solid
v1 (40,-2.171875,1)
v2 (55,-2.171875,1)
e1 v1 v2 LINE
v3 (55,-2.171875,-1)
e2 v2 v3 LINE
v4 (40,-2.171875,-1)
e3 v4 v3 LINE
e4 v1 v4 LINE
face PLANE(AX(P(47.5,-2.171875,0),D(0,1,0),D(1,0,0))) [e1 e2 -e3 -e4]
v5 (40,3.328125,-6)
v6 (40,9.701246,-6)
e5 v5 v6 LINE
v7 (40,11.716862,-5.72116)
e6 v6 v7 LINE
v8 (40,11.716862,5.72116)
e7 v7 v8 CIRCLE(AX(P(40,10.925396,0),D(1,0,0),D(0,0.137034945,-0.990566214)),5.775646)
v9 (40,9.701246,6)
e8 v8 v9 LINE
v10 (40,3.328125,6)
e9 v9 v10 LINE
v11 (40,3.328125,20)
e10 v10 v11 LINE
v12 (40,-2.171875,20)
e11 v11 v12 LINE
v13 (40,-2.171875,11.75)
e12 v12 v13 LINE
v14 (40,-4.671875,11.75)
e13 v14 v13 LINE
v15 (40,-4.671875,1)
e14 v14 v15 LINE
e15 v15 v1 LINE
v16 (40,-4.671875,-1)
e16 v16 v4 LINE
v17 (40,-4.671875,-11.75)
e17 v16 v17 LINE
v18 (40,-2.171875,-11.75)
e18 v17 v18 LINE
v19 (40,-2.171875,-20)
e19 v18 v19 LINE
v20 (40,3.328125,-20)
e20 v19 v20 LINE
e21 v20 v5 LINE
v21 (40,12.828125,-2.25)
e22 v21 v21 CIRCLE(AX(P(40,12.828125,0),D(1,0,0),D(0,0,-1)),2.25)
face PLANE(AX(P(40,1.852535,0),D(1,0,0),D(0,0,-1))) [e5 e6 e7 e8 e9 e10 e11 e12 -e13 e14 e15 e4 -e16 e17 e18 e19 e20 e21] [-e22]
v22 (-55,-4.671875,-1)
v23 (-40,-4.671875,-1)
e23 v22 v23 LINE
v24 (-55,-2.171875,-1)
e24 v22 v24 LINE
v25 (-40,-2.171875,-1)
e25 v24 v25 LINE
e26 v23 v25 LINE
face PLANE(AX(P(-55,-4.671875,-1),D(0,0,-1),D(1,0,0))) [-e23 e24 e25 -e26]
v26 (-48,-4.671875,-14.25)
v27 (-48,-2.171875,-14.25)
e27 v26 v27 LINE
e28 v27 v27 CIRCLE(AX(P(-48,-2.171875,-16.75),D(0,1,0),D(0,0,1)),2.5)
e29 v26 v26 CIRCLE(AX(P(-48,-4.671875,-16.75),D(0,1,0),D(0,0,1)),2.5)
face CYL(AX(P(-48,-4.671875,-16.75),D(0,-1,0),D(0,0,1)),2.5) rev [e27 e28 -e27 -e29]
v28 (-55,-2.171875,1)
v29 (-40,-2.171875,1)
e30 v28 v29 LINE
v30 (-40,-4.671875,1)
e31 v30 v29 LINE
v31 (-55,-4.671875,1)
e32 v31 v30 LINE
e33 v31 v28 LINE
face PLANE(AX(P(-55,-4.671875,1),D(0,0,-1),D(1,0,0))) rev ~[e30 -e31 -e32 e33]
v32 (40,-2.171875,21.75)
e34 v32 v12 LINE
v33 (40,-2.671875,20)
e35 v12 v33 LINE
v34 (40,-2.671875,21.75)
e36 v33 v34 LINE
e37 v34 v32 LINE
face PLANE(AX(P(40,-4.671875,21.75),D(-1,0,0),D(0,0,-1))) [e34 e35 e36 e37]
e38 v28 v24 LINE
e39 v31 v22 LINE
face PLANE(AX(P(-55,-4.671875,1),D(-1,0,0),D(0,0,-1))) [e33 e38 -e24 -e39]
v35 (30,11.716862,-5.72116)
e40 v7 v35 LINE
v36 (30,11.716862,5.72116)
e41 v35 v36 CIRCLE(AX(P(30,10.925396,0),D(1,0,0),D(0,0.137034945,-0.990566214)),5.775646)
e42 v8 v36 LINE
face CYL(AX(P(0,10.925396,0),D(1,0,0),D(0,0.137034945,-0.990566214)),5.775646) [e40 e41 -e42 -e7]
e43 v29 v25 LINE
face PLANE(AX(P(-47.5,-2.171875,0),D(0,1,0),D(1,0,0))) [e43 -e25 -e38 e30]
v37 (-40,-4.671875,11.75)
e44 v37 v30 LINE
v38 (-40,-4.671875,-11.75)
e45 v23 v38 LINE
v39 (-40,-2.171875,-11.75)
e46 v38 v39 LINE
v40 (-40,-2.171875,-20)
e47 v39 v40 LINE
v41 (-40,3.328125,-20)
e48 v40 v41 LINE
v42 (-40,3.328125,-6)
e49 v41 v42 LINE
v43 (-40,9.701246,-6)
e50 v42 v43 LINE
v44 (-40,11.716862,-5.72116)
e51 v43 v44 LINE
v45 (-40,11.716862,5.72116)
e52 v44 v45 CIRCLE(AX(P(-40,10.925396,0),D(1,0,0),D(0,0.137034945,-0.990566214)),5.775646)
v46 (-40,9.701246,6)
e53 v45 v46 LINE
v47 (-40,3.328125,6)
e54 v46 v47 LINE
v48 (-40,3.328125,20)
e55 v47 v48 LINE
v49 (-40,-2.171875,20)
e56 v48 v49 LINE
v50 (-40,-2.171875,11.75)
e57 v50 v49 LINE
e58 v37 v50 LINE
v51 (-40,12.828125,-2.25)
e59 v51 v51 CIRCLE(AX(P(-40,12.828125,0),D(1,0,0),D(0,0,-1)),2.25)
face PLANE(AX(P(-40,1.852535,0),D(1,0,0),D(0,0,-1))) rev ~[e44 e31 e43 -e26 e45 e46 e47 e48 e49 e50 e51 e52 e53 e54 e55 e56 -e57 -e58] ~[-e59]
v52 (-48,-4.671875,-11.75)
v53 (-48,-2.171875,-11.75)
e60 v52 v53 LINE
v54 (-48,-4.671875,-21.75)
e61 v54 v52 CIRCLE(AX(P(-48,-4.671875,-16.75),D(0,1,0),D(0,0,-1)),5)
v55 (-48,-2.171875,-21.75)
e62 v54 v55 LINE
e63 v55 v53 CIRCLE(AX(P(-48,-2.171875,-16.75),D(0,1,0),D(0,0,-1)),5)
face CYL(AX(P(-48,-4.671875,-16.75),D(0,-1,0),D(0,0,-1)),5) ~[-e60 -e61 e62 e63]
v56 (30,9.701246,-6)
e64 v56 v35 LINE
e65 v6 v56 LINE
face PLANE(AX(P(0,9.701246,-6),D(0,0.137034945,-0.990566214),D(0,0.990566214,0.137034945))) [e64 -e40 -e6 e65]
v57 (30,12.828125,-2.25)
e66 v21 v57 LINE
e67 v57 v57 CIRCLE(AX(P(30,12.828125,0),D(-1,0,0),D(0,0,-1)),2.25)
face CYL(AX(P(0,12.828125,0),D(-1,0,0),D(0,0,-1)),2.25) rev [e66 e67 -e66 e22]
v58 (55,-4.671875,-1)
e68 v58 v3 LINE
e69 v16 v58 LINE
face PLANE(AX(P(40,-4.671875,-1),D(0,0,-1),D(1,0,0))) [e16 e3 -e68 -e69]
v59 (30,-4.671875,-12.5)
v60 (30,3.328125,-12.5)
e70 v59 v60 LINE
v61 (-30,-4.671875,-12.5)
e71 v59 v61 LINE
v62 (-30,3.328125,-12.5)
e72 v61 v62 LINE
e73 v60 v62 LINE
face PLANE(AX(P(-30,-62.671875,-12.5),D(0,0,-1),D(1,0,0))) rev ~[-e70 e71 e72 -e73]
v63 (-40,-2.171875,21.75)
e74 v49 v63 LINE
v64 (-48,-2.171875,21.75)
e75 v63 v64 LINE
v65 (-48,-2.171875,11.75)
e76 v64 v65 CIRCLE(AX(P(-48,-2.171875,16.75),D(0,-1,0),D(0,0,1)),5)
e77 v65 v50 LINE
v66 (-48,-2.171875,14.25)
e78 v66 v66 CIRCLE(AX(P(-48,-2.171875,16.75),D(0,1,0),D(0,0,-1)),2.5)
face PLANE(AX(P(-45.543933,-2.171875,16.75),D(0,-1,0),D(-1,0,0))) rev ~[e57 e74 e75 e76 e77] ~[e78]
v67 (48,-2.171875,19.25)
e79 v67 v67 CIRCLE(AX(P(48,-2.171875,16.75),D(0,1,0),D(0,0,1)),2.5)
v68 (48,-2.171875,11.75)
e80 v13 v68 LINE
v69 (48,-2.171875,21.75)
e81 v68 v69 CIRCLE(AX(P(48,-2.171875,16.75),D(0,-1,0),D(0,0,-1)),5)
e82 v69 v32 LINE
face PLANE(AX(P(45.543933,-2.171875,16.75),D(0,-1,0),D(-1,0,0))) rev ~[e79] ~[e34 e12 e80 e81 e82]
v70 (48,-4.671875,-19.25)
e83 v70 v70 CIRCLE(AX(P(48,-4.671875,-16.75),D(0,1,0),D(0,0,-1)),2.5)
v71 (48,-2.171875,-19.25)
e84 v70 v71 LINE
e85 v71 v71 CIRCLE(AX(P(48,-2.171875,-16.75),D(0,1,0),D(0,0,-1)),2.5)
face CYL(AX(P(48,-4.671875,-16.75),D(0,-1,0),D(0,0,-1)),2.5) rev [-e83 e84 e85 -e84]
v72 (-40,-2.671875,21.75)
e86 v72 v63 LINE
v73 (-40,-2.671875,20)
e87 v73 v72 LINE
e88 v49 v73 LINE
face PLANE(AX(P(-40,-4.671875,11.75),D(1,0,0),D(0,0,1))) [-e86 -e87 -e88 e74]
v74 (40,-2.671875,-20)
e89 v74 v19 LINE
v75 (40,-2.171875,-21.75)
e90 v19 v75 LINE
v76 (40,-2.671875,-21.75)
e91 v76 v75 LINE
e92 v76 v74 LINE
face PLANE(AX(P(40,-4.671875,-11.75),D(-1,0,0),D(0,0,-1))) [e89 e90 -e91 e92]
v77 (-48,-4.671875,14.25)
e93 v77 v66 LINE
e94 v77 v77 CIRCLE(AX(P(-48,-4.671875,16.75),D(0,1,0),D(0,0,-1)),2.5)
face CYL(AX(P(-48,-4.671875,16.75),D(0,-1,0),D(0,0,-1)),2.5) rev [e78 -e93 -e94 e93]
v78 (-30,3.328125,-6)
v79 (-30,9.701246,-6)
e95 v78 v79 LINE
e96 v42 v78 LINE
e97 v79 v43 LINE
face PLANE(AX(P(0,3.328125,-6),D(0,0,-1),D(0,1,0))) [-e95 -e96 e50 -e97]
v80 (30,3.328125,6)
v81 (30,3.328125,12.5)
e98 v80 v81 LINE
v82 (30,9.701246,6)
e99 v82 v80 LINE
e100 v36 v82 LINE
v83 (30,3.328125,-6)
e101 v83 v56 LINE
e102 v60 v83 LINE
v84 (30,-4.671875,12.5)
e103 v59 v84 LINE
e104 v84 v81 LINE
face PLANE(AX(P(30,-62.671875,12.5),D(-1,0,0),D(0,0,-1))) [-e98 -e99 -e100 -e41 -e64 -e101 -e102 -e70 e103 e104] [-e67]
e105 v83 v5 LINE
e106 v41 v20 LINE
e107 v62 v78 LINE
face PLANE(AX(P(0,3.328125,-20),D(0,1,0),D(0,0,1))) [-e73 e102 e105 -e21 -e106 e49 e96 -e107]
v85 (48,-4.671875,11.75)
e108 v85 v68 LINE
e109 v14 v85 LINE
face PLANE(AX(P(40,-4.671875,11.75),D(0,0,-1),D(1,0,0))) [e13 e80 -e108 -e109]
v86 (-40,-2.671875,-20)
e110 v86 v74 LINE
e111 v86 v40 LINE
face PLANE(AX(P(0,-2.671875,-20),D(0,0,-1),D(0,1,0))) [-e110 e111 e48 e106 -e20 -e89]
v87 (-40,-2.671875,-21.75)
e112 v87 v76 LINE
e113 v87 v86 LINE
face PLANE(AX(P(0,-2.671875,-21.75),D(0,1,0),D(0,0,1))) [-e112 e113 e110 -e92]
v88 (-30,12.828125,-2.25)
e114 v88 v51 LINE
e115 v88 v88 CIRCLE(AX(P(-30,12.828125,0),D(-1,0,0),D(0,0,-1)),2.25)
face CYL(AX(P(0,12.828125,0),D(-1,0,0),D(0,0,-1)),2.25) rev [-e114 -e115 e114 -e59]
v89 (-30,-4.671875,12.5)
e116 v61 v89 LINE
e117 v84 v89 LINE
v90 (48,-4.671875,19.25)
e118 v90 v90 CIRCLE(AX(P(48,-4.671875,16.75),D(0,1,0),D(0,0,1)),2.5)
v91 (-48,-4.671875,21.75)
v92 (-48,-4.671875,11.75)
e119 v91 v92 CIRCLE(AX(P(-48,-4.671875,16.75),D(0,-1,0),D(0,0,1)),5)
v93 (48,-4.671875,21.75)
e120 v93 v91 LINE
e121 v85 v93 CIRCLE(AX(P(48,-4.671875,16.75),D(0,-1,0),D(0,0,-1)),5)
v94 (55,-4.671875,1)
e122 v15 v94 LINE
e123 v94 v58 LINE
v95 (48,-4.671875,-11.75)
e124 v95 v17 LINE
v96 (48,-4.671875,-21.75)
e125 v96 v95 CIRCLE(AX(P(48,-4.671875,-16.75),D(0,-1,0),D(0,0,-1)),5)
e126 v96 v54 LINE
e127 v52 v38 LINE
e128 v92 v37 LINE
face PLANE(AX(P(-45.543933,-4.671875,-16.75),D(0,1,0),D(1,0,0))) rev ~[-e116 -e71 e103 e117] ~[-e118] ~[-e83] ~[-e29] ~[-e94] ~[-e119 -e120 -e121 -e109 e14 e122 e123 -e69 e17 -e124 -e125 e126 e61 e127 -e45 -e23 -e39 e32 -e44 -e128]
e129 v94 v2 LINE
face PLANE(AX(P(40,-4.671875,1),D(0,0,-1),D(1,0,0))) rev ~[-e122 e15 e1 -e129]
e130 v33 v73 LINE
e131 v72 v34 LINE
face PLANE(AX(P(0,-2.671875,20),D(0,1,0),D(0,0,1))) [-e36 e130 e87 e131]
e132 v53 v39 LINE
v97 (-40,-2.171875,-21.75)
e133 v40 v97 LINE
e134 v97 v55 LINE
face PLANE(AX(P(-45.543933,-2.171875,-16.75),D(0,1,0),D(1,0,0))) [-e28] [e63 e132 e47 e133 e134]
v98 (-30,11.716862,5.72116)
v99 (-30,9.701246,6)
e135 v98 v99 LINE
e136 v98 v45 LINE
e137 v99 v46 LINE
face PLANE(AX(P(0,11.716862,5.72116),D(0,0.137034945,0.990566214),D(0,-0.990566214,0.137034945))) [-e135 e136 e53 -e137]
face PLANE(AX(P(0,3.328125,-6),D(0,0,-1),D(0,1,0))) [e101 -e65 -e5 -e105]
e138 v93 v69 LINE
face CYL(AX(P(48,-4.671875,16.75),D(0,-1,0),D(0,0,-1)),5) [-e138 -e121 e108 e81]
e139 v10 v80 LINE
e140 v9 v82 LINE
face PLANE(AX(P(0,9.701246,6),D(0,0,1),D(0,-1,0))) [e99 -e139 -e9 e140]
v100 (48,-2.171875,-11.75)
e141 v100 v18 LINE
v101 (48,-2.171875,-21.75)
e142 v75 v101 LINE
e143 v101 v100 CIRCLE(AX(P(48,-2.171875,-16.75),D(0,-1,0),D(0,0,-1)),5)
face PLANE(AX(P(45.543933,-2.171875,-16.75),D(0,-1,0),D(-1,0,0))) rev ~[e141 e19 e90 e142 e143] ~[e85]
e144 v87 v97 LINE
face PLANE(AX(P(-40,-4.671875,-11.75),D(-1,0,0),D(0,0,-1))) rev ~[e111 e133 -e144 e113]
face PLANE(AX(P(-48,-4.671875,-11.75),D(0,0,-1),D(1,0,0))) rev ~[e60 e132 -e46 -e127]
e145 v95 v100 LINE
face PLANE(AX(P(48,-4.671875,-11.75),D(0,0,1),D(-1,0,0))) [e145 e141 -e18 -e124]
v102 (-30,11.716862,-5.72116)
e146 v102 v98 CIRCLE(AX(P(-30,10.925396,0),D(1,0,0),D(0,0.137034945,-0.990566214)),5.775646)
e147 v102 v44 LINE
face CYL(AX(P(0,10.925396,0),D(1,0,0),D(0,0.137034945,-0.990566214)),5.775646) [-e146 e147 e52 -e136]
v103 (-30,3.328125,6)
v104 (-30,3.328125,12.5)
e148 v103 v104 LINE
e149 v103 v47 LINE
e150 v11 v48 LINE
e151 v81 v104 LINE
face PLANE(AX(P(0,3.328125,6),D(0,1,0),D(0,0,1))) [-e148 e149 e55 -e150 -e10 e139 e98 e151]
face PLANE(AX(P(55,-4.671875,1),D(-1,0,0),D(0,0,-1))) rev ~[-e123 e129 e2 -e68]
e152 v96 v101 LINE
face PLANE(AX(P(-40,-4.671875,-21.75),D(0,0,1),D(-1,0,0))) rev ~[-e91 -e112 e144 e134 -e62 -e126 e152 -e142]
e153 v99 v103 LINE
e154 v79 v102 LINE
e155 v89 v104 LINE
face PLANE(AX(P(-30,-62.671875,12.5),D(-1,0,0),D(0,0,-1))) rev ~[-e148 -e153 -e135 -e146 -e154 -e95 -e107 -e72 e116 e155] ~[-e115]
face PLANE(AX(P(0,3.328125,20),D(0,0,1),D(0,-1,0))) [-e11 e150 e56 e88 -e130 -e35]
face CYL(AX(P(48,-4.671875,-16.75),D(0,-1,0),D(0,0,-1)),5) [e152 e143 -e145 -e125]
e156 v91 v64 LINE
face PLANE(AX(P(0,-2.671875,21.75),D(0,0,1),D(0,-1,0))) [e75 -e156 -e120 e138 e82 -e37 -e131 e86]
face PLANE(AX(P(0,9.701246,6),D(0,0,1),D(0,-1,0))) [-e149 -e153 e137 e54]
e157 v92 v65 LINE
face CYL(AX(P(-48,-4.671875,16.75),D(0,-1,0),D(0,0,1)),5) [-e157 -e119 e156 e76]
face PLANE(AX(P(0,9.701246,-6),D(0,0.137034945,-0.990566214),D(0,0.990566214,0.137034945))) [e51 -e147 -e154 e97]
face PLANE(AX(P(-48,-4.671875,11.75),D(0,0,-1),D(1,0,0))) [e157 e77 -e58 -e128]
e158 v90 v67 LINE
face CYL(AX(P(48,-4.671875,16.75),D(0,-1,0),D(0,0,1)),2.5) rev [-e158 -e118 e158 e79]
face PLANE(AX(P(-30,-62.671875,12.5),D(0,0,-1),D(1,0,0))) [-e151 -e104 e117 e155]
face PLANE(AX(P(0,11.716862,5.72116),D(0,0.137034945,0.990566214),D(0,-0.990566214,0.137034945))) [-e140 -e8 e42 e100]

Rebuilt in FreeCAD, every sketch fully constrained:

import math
import FreeCAD as App
import Part
import Sketcher
Q = App.Units.Quantity


def add_polygon(sketch, points):
    """Adds a closed chain of lines whose ends are joined by coincident constraints."""
    first, n = sketch.GeometryCount, len(points)
    for a, b in zip(points, points[1:] + points[:1]):
        sketch.addGeometry(Part.LineSegment(App.Vector(*a, 0), App.Vector(*b, 0)), False)
    for i in range(n):
        sketch.addConstraint(Sketcher.Constraint("Coincident", first + i, 2, first + (i + 1) % n, 1))

doc = App.newDocument("Part")
body = doc.addObject("PartDesign::Body", "Body")

# Sketch on YZ plane
sketch1 = body.newObject("Sketcher::SketchObject", "Sketch")
sketch1.AttachmentSupport = (doc.getObject("YZ_Plane"), [""])
sketch1.MapMode = "FlatFace"
sketch1.addGeometry([
    Part.LineSegment(App.Vector(-2.671875, 20, 0), App.Vector(-2.671875, 21.75, 0)),  # 0
    Part.LineSegment(App.Vector(-2.671875, 21.75, 0), App.Vector(-4.671875, 21.75, 0)),  # 1
    Part.LineSegment(App.Vector(-4.671875, 21.75, 0), App.Vector(-4.671875, -21.75, 0)),  # 2
    Part.LineSegment(App.Vector(-4.671875, -21.75, 0), App.Vector(-2.671875, -21.75, 0)),  # 3
    Part.LineSegment(App.Vector(-2.671875, -21.75, 0), App.Vector(-2.671875, -20, 0)),  # 4
    Part.LineSegment(App.Vector(-2.671875, -20, 0), App.Vector(3.328125, -20, 0)),  # 5
    Part.LineSegment(App.Vector(3.328125, -20, 0), App.Vector(3.328125, -6, 0)),  # 6
    Part.LineSegment(App.Vector(3.328125, -6, 0), App.Vector(9.701246, -6, 0)),  # 7
    Part.LineSegment(App.Vector(9.701246, -6, 0), App.Vector(11.716862, -5.72116, 0)),  # 8
    Part.ArcOfCircle(Part.Circle(App.Vector(10.925396, 0, 0), App.Vector(0, 0, 1), 5.775646), math.radians(-82.123693), math.radians(82.123693)),  # 9
    Part.LineSegment(App.Vector(11.716862, 5.72116, 0), App.Vector(9.701246, 6, 0)),  # 10
    Part.LineSegment(App.Vector(9.701246, 6, 0), App.Vector(3.328125, 6, 0)),  # 11
    Part.LineSegment(App.Vector(3.328125, 6, 0), App.Vector(3.328125, 20, 0)),  # 12
    Part.LineSegment(App.Vector(3.328125, 20, 0), App.Vector(-2.671875, 20, 0)),  # 13
    Part.Circle(App.Vector(12.828125, 0, 0), App.Vector(0, 0, 1), 2.25),  # 14
], False)
sketch1.addConstraint([
    Sketcher.Constraint("Coincident", 0, 2, 1, 1),
    Sketcher.Constraint("Coincident", 1, 2, 2, 1),
    Sketcher.Constraint("Coincident", 2, 2, 3, 1),
    Sketcher.Constraint("Coincident", 3, 2, 4, 1),
    Sketcher.Constraint("Coincident", 4, 2, 5, 1),
    Sketcher.Constraint("Coincident", 5, 2, 6, 1),
    Sketcher.Constraint("Coincident", 6, 2, 7, 1),
    Sketcher.Constraint("Coincident", 7, 2, 8, 1),
    Sketcher.Constraint("Tangent", 8, 2, 9, 1),
    Sketcher.Constraint("Tangent", 9, 2, 10, 1),
    Sketcher.Constraint("Coincident", 10, 2, 11, 1),
    Sketcher.Constraint("Coincident", 11, 2, 12, 1),
    Sketcher.Constraint("Coincident", 12, 2, 13, 1),
    Sketcher.Constraint("Coincident", 13, 2, 0, 1),
    Sketcher.Constraint("Vertical", 0),
    Sketcher.Constraint("Horizontal", 1),
    Sketcher.Constraint("Vertical", 2),
    Sketcher.Constraint("Horizontal", 3),
    Sketcher.Constraint("Vertical", 4),
    Sketcher.Constraint("Horizontal", 5),
    Sketcher.Constraint("Vertical", 6),
    Sketcher.Constraint("Horizontal", 7),
    Sketcher.Constraint("Horizontal", 11),
    Sketcher.Constraint("Vertical", 12),
    Sketcher.Constraint("Horizontal", 13),
    Sketcher.Constraint("Symmetric", 0, 2, 3, 2, -1),
    Sketcher.Constraint("Symmetric", 8, 2, 9, 2, -1),
    Sketcher.Constraint("Symmetric", 6, 2, 11, 2, -1),
    Sketcher.Constraint("PointOnObject", 14, 3, -1),
    Sketcher.Constraint("Equal", 0, 4),
    Sketcher.Constraint("Diameter", 14, Q("4.5 mm")),
    Sketcher.Constraint("DistanceX", 1, 2, 1, 1, Q("2 mm")),
    Sketcher.Constraint("DistanceX", 5, 1, 5, 2, Q("6 mm")),
    Sketcher.Constraint("DistanceY", 6, 1, 6, 2, Q("14 mm")),
    Sketcher.Constraint("DistanceY", 2, 2, 2, 1, Q("43.5 mm")),
    Sketcher.Constraint("DistanceY", 4, 2, -1, 1, Q("20 mm")),
    Sketcher.Constraint("DistanceX", 0, 2, 14, 3, Q("15.5 mm")),
    Sketcher.Constraint("Radius", 9, Q("5.775646 mm")),
    Sketcher.Constraint("DistanceX", 7, 1, 7, 2, Q("6.373121 mm")),
    Sketcher.Constraint("Distance", 8, Q("2.034811 mm")),
    Sketcher.Constraint("DistanceX", -1, 1, 8, 2, Q("11.716862 mm")),
])
pad1 = body.newObject("PartDesign::Pad", "Pad")
pad1.Profile = sketch1
pad1.Length = 80
pad1.Midplane = True

# Sketch on XZ plane
sketch2 = body.newObject("Sketcher::SketchObject", "Sketch001")
sketch2.AttachmentSupport = (doc.getObject("XZ_Plane"), [""])
sketch2.MapMode = "FlatFace"
sketch2.AttachmentOffset = App.Placement(App.Vector(0, 0, 4.671875), App.Rotation())
sketch2.addGeometry(Part.LineSegment(App.Vector(-40, -21.75, 0), App.Vector(-48, -21.75, 0)), False)  # 0
sketch2.addGeometry(Part.ArcOfCircle(Part.Circle(App.Vector(-48, -16.75, 0), App.Vector(0, 0, 1), 5), math.radians(90), math.radians(270)), False)  # 1
sketch2.addGeometry(Part.LineSegment(App.Vector(-48, -11.75, 0), App.Vector(-40, -11.75, 0)), False)  # 2
sketch2.addGeometry(Part.LineSegment(App.Vector(-40, -11.75, 0), App.Vector(-40, -21.75, 0)), False)  # 3
sketch2.addGeometry(Part.Circle(App.Vector(-48, -16.75, 0), App.Vector(0, 0, 1), 2.5), False)  # 4
sketch2.addGeometry(Part.LineSegment(App.Vector(48, -21.75, 0), App.Vector(40, -21.75, 0)), False)  # 5
sketch2.addGeometry(Part.LineSegment(App.Vector(40, -21.75, 0), App.Vector(40, -11.75, 0)), False)  # 6
sketch2.addGeometry(Part.LineSegment(App.Vector(40, -11.75, 0), App.Vector(48, -11.75, 0)), False)  # 7
sketch2.addGeometry(Part.ArcOfCircle(Part.Circle(App.Vector(48, -16.75, 0), App.Vector(0, 0, 1), 5), math.radians(-90), math.radians(90)), False)  # 8
sketch2.addGeometry(Part.Circle(App.Vector(48, -16.75, 0), App.Vector(0, 0, 1), 2.5), False)  # 9
sketch2.addGeometry(Part.LineSegment(App.Vector(40, 11.75, 0), App.Vector(40, 21.75, 0)), False)  # 10
sketch2.addGeometry(Part.LineSegment(App.Vector(40, 21.75, 0), App.Vector(48, 21.75, 0)), False)  # 11
sketch2.addGeometry(Part.ArcOfCircle(Part.Circle(App.Vector(48, 16.75, 0), App.Vector(0, 0, 1), 5), math.radians(-90), math.radians(90)), False)  # 12
sketch2.addGeometry(Part.LineSegment(App.Vector(48, 11.75, 0), App.Vector(40, 11.75, 0)), False)  # 13
sketch2.addGeometry(Part.Circle(App.Vector(48, 16.75, 0), App.Vector(0, 0, 1), 2.5), False)  # 14
sketch2.addGeometry(Part.LineSegment(App.Vector(-48, 21.75, 0), App.Vector(-40, 21.75, 0)), False)  # 15
sketch2.addGeometry(Part.LineSegment(App.Vector(-40, 21.75, 0), App.Vector(-40, 11.75, 0)), False)  # 16
sketch2.addGeometry(Part.LineSegment(App.Vector(-40, 11.75, 0), App.Vector(-48, 11.75, 0)), False)  # 17
sketch2.addGeometry(Part.ArcOfCircle(Part.Circle(App.Vector(-48, 16.75, 0), App.Vector(0, 0, 1), 5), math.radians(90), math.radians(270)), False)  # 18
sketch2.addGeometry(Part.Circle(App.Vector(-48, 16.75, 0), App.Vector(0, 0, 1), 2.5), False)  # 19
add_polygon(sketch2, [(-55, -1), (-55, 1), (-40, 1), (-40, -1)])  # lines 20-23
add_polygon(sketch2, [(40, -1), (40, 1), (55, 1), (55, -1)])  # lines 24-27
sketch2.addConstraint([
    Sketcher.Constraint("Tangent", 0, 2, 1, 2),
    Sketcher.Constraint("Tangent", 1, 1, 2, 1),
    Sketcher.Constraint("Coincident", 2, 2, 3, 1),
    Sketcher.Constraint("Coincident", 3, 2, 0, 1),
    Sketcher.Constraint("Coincident", 5, 2, 6, 1),
    Sketcher.Constraint("Coincident", 6, 2, 7, 1),
    Sketcher.Constraint("Tangent", 7, 2, 8, 2),
    Sketcher.Constraint("Tangent", 8, 1, 5, 1),
    Sketcher.Constraint("Coincident", 10, 2, 11, 1),
    Sketcher.Constraint("Tangent", 11, 2, 12, 2),
    Sketcher.Constraint("Tangent", 12, 1, 13, 1),
    Sketcher.Constraint("Coincident", 13, 2, 10, 1),
    Sketcher.Constraint("Coincident", 15, 2, 16, 1),
    Sketcher.Constraint("Coincident", 16, 2, 17, 1),
    Sketcher.Constraint("Tangent", 17, 2, 18, 2),
    Sketcher.Constraint("Tangent", 18, 1, 15, 1),
    Sketcher.Constraint("Horizontal", 0),
    Sketcher.Constraint("Horizontal", 2),
    Sketcher.Constraint("Vertical", 3),
    Sketcher.Constraint("Horizontal", 5),
    Sketcher.Constraint("Vertical", 6),
    Sketcher.Constraint("Horizontal", 7),
    Sketcher.Constraint("Vertical", 10),
    Sketcher.Constraint("Horizontal", 11),
    Sketcher.Constraint("Horizontal", 13),
    Sketcher.Constraint("Horizontal", 15),
    Sketcher.Constraint("Vertical", 16),
    Sketcher.Constraint("Horizontal", 17),
    Sketcher.Constraint("Vertical", 20),
    Sketcher.Constraint("Horizontal", 21),
    Sketcher.Constraint("Vertical", 22),
    Sketcher.Constraint("Horizontal", 23),
    Sketcher.Constraint("Vertical", 24),
    Sketcher.Constraint("Horizontal", 25),
    Sketcher.Constraint("Vertical", 26),
    Sketcher.Constraint("Horizontal", 27),
    Sketcher.Constraint("Coincident", 4, 3, 1, 3),
    Sketcher.Constraint("Coincident", 9, 3, 8, 3),
    Sketcher.Constraint("Coincident", 14, 3, 12, 3),
    Sketcher.Constraint("Coincident", 19, 3, 18, 3),
    Sketcher.Constraint("Equal", 1, 8),
    Sketcher.Constraint("Equal", 4, 9),
    Sketcher.Constraint("Equal", 8, 12),
    Sketcher.Constraint("Equal", 9, 14),
    Sketcher.Constraint("Equal", 12, 18),
    Sketcher.Constraint("Equal", 14, 19),
    Sketcher.Constraint("Symmetric", 1, 3, 12, 3, -1, 1),
    Sketcher.Constraint("Symmetric", 8, 3, 18, 3, -1, 1),
    Sketcher.Constraint("Symmetric", 22, 2, 24, 2, -1, 1),
    Sketcher.Constraint("Symmetric", 20, 2, 26, 2, -1, 1),
    Sketcher.Constraint("Symmetric", 1, 3, 8, 3, -2),
    Sketcher.Constraint("Horizontal", 21, 2, 24, 2),
    Sketcher.Constraint("Vertical", 6, 2, 10, 2),
    Sketcher.Constraint("Vertical", 3, 2, 15, 2),
    Sketcher.Constraint("Vertical", 16, 2, 21, 2),
    Sketcher.Constraint("Vertical", 13, 2, 24, 2),
    Sketcher.Constraint("Diameter", 4, Q("5 mm")),
    Sketcher.Constraint("Radius", 1, Q("5 mm")),
    Sketcher.Constraint("DistanceX", 0, 2, 0, 1, Q("8 mm")),
    Sketcher.Constraint("DistanceX", 21, 1, 21, 2, Q("15 mm")),
    Sketcher.Constraint("DistanceY", 20, 1, 20, 2, Q("2 mm")),
    Sketcher.Constraint("DistanceX", 1, 3, -1, 1, Q("48 mm")),
    Sketcher.Constraint("DistanceY", 8, 3, 12, 3, Q("33.5 mm")),
])
pad2 = body.newObject("PartDesign::Pad", "Pad001")
pad2.Profile = sketch2
pad2.Length = 2.5
pad2.Reversed = True

# Sketch on XZ plane
sketch3 = body.newObject("Sketcher::SketchObject", "Sketch002")
sketch3.AttachmentSupport = (doc.getObject("XZ_Plane"), [""])
sketch3.MapMode = "FlatFace"
sketch3.AttachmentOffset = App.Placement(App.Vector(0, 0, 2.671875), App.Rotation())
add_polygon(sketch3, [(-30, -12.5), (-30, 12.5), (30, 12.5), (30, -12.5)])  # lines 0-3
sketch3.addConstraint([
    Sketcher.Constraint("Vertical", 0),
    Sketcher.Constraint("Horizontal", 1),
    Sketcher.Constraint("Vertical", 2),
    Sketcher.Constraint("Horizontal", 3),
    Sketcher.Constraint("Symmetric", 0, 2, 2, 2, -1, 1),
    Sketcher.Constraint("DistanceX", 1, 1, 1, 2, Q("60 mm")),
    Sketcher.Constraint("DistanceY", 0, 1, 0, 2, Q("25 mm")),
])
pocket1 = body.newObject("PartDesign::Pocket", "Pocket")
pocket1.Profile = sketch3
pocket1.Type = "ThroughAll"
pocket1.Midplane = True

doc.recompute()
